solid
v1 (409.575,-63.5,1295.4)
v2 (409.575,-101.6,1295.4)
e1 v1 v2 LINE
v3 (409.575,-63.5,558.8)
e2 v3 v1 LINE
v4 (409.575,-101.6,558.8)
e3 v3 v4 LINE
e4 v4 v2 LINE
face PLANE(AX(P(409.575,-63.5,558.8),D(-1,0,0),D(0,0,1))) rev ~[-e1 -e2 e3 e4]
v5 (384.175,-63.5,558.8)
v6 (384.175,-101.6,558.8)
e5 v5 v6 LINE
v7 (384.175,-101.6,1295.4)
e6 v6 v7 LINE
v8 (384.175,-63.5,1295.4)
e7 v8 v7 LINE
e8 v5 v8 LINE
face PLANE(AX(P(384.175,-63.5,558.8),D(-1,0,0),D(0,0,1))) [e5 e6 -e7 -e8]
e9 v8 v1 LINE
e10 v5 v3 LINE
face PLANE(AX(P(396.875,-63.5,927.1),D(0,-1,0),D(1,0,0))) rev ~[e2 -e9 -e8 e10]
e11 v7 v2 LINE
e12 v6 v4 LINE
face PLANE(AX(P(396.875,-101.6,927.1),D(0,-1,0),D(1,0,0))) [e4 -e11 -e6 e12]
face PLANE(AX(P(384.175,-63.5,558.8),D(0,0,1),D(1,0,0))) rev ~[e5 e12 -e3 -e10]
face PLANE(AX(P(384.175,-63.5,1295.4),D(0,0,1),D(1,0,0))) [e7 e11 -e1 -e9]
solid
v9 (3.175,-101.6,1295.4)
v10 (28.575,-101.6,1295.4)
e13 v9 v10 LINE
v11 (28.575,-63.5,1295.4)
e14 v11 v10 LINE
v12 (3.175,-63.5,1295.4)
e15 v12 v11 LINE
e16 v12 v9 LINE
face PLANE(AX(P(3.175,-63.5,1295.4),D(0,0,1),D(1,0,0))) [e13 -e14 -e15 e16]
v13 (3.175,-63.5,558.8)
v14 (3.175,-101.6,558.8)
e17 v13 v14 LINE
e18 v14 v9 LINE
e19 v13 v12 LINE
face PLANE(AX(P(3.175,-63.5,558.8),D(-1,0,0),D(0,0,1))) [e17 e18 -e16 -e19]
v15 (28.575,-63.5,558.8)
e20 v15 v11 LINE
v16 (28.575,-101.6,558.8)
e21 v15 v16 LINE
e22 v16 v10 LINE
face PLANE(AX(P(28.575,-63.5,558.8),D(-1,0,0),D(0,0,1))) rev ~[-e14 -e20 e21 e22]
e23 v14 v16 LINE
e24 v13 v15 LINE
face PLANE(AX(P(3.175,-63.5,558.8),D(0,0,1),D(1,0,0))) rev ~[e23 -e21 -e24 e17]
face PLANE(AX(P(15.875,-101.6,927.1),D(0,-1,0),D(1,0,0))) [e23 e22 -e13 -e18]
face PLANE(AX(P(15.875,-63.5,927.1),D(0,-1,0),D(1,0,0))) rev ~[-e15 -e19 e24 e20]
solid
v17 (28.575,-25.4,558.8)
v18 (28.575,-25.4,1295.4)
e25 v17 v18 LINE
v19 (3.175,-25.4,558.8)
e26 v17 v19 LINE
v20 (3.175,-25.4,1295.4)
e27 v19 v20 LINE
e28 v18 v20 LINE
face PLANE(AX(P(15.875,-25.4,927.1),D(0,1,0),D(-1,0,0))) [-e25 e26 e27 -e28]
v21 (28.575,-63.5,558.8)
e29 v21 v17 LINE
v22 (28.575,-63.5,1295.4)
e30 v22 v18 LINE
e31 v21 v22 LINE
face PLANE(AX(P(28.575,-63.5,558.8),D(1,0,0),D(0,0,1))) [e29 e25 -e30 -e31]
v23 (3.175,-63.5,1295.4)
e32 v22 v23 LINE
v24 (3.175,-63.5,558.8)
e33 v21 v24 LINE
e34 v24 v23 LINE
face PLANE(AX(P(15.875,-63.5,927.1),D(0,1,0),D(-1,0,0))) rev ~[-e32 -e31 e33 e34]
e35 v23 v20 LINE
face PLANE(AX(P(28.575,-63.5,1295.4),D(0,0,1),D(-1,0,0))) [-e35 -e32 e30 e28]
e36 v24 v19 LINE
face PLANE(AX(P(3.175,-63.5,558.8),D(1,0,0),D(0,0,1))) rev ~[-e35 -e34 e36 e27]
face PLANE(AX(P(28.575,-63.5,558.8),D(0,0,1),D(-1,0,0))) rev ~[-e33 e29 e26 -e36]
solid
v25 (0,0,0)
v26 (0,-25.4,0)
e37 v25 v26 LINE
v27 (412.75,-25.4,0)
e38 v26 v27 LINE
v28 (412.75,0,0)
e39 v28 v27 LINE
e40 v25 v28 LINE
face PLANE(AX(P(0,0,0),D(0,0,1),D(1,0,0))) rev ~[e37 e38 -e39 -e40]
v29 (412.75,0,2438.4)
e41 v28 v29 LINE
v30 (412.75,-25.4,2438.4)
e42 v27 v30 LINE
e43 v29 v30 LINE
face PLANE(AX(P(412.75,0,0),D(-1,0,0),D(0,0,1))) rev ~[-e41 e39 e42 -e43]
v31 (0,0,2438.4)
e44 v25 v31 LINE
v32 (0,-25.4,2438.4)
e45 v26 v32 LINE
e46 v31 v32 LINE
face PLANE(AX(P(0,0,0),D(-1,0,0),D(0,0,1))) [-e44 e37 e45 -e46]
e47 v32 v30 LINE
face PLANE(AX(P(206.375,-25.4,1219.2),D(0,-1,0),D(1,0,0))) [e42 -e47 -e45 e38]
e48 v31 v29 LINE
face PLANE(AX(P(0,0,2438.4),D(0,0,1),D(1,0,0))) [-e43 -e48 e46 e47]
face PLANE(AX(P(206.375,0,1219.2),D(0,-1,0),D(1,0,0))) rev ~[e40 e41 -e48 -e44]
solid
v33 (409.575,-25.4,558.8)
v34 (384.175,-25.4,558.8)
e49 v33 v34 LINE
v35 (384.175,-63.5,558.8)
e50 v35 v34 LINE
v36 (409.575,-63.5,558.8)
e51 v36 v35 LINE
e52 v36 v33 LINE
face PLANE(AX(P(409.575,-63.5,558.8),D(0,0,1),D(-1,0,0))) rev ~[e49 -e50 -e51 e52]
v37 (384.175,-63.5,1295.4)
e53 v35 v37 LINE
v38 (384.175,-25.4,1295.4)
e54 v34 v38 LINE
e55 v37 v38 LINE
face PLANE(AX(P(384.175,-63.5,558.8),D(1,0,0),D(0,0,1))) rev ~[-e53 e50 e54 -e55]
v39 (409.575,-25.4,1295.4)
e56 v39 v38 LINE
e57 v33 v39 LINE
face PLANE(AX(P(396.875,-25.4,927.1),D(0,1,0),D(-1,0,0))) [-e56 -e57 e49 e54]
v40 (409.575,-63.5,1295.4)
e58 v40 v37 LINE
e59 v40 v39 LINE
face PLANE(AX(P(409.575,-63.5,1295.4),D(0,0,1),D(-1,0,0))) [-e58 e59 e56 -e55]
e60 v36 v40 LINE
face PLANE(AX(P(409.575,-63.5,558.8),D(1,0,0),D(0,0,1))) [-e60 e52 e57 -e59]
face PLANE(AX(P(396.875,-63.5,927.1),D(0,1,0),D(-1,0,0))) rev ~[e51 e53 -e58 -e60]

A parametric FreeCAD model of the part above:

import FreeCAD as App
import Part
import Sketcher
from FreeCAD import Vector
Q = App.Units.Quantity


def add_polygon(sketch, points):
    """Adds a closed chain of lines whose ends are joined by coincident constraints."""
    first, n = sketch.GeometryCount, len(points)
    for a, b in zip(points, points[1:] + points[:1]):
        sketch.addGeometry(Part.LineSegment(App.Vector(*a, 0), App.Vector(*b, 0)), False)
    for i in range(n):
        sketch.addConstraint(Sketcher.Constraint("Coincident", first + i, 2, first + (i + 1) % n, 1))

doc = App.newDocument("Part")
params = doc.addObject("Spreadsheet::Sheet", "Params")
for row, (alias, value) in enumerate([
    ("sketch1_height", "96 in"),
    ("sketch1_width", "16.25 in"),
    ("pad1_length", "1 in"),
    ("sketch2_width", "16 in"),
    ("sketch2_width2", "1 in"),
    ("sketch2_height", "29 in"),
    ("sketch2_height2", "26.5 in"),
    ("pad2_length", "3 in"),
    ("sketch3_width", "16 in"),
    ("sketch3_height", "23 in"),
    ("pad3_length", "1.5 in"),
    ("sketch4_width", "1 in"),
    ("sketch4_height", "29 in"),
    ("pad4_length", "1.5 in"),
    ("sketch5_width", "1 in"),
    ("sketch5_height", "29 in"),
    ("pad5_length", "1.5 in"),
], start=1):
    params.set(f"A{row}", alias)
    params.set(f"B{row}", "=" + value)
    params.setAlias(f"B{row}", alias)

body = doc.addObject("PartDesign::Body", "Body")

sketch1 = body.newObject("Sketcher::SketchObject", "Sketch")
sketch1.AttachmentSupport = (doc.getObject("XZ_Plane"), [""])
sketch1.MapMode = "FlatFace"
add_polygon(sketch1, [(0, 2438), (0, 0), (413, 0), (413, 2438)])
sketch1.addConstraint([
    Sketcher.Constraint("Vertical", 0),
    Sketcher.Constraint("Horizontal", 1),
    Sketcher.Constraint("Vertical", 2),
    Sketcher.Constraint("Horizontal", 3),
    Sketcher.Constraint("Coincident", 0, 2, -1, 1),
    Sketcher.Constraint("DistanceY", 0, 2, 0, 1, Q("96 in")),
    Sketcher.Constraint("DistanceX", 1, 1, 1, 2, Q("16.25 in")),
])
sketch1.setExpression("Constraints[9]", "Params.sketch1_height")
sketch1.setExpression("Constraints[10]", "Params.sketch1_width")
pad1 = body.newObject("PartDesign::Pad", "Pad")
pad1.Profile = sketch1
pad1.setExpression("Length", "Params.pad1_length")
body2 = doc.addObject("PartDesign::Body", "Body001")

sketch2 = body2.newObject("Sketcher::SketchObject", "Sketch001")
sketch2.AttachmentSupport = (doc.getObject("XZ_Plane001"), [""])
sketch2.MapMode = "FlatFace"
sketch2.AttachmentOffset = App.Placement(Vector(0, 0, 1 * 25.4), App.Rotation())
add_polygon(sketch2, [(410, 864), (3, 864), (3, 127), (29, 127), (29, 800), (384, 800), (384, 127), (410, 127)])
sketch2.addConstraint([
    Sketcher.Constraint("Horizontal", 0),
    Sketcher.Constraint("Vertical", 1),
    Sketcher.Constraint("Horizontal", 2),
    Sketcher.Constraint("Vertical", 3),
    Sketcher.Constraint("Horizontal", 4),
    Sketcher.Constraint("Vertical", 5),
    Sketcher.Constraint("Horizontal", 6),
    Sketcher.Constraint("Vertical", 7),
    Sketcher.Constraint("Horizontal", 2, 2, 5, 2),
    Sketcher.Constraint("Equal", 2, 6),
    Sketcher.Constraint("DistanceX", 0, 2, 0, 1, Q("16 in")),
    Sketcher.Constraint("DistanceX", 2, 1, 2, 2, Q("1 in")),
    Sketcher.Constraint("DistanceY", 1, 2, 1, 1, Q("29 in")),
    Sketcher.Constraint("DistanceY", 3, 1, 3, 2, Q("26.5 in")),
    Sketcher.Constraint("DistanceY", -1, 1, 0, 2, Q("34 in")),
    Sketcher.Constraint("DistanceX", -1, 1, 0, 2, Q("0.125 in")),
])
sketch2.setExpression("Constraints[18]", "Params.sketch2_width")
sketch2.setExpression("Constraints[19]", "Params.sketch2_width2")
sketch2.setExpression("Constraints[20]", "Params.sketch2_height")
sketch2.setExpression("Constraints[21]", "Params.sketch2_height2")
pad2 = body2.newObject("PartDesign::Pad", "Pad001")
pad2.Profile = sketch2
pad2.setExpression("Length", "Params.pad2_length")
body3 = doc.addObject("PartDesign::Body", "Body002")

sketch3 = body3.newObject("Sketcher::SketchObject", "Sketch002")
sketch3.AttachmentSupport = (doc.getObject("XZ_Plane002"), [""])
sketch3.MapMode = "FlatFace"
sketch3.AttachmentOffset = App.Placement(Vector(0, 0, 1 * 25.4), App.Rotation())
add_polygon(sketch3, [(3, 1295), (3, 711), (410, 711), (410, 1295)])
sketch3.addConstraint([
    Sketcher.Constraint("Vertical", 0),
    Sketcher.Constraint("Horizontal", 1),
    Sketcher.Constraint("Vertical", 2),
    Sketcher.Constraint("Horizontal", 3),
    Sketcher.Constraint("DistanceX", 1, 1, 1, 2, Q("16 in")),
    Sketcher.Constraint("DistanceY", 0, 2, 0, 1, Q("23 in")),
    Sketcher.Constraint("DistanceY", -1, 1, 0, 2, Q("28 in")),
    Sketcher.Constraint("DistanceX", -1, 1, 0, 2, Q("0.125 in")),
])
sketch3.setExpression("Constraints[8]", "Params.sketch3_width")
sketch3.setExpression("Constraints[9]", "Params.sketch3_height")
pad3 = body3.newObject("PartDesign::Pad", "Pad002")
pad3.Profile = sketch3
pad3.setExpression("Length", "Params.pad3_length")
body4 = doc.addObject("PartDesign::Body", "Body003")
body4.AllowCompound = True

sketch4 = body4.newObject("Sketcher::SketchObject", "Sketch003")
sketch4.AttachmentSupport = (doc.getObject("XZ_Plane003"), [""])
sketch4.MapMode = "FlatFace"
sketch4.AttachmentOffset = App.Placement(Vector(0, 0, 2.5 * 25.4), App.Rotation())
add_polygon(sketch4, [(3, 1295), (3, 559), (29, 559), (29, 1295)])
add_polygon(sketch4, [(384, 1295), (384, 559), (410, 559), (410, 1295)])
sketch4.addConstraint([
    Sketcher.Constraint("Vertical", 0),
    Sketcher.Constraint("Horizontal", 1),
    Sketcher.Constraint("Vertical", 2),
    Sketcher.Constraint("Horizontal", 3),
    Sketcher.Constraint("Vertical", 4),
    Sketcher.Constraint("Horizontal", 5),
    Sketcher.Constraint("Vertical", 6),
    Sketcher.Constraint("Horizontal", 7),
    Sketcher.Constraint("Horizontal", 1, 2, 4, 2),
    Sketcher.Constraint("Horizontal", 3, 2, 6, 2),
    Sketcher.Constraint("Equal", 3, 5),
    Sketcher.Constraint("DistanceX", 1, 1, 1, 2, Q("1 in")),
    Sketcher.Constraint("DistanceY", 0, 2, 0, 1, Q("29 in")),
    Sketcher.Constraint("DistanceY", -1, 1, 0, 2, Q("22 in")),
    Sketcher.Constraint("DistanceX", 1, 2, 4, 2, Q("14 in")),
    Sketcher.Constraint("DistanceX", -1, 1, 0, 2, Q("0.125 in")),
])
sketch4.setExpression("Constraints[19]", "Params.sketch4_width")
sketch4.setExpression("Constraints[20]", "Params.sketch4_height")
pad4 = body4.newObject("PartDesign::Pad", "Pad003")
pad4.Profile = sketch4
pad4.setExpression("Length", "Params.pad4_length")
body5 = doc.addObject("PartDesign::Body", "Body004")
body5.AllowCompound = True

sketch5 = body5.newObject("Sketcher::SketchObject", "Sketch004")
sketch5.AttachmentSupport = (doc.getObject("XZ_Plane004"), [""])
sketch5.MapMode = "FlatFace"
sketch5.AttachmentOffset = App.Placement(Vector(0, 0, 2.5 * 25.4), App.Rotation())
add_polygon(sketch5, [(29, 1295), (29, 559), (3, 559), (3, 1295)])
add_polygon(sketch5, [(410, 1295), (410, 559), (384, 559), (384, 1295)])
sketch5.addConstraint([
    Sketcher.Constraint("Vertical", 0),
    Sketcher.Constraint("Horizontal", 1),
    Sketcher.Constraint("Vertical", 2),
    Sketcher.Constraint("Horizontal", 3),
    Sketcher.Constraint("Vertical", 4),
    Sketcher.Constraint("Horizontal", 5),
    Sketcher.Constraint("Vertical", 6),
    Sketcher.Constraint("Horizontal", 7),
    Sketcher.Constraint("Horizontal", 1, 2, 4, 2),
    Sketcher.Constraint("Horizontal", 3, 2, 6, 2),
    Sketcher.Constraint("Equal", 3, 5),
    Sketcher.Constraint("DistanceX", 1, 2, 1, 1, Q("1 in")),
    Sketcher.Constraint("DistanceY", 0, 2, 0, 1, Q("29 in")),
    Sketcher.Constraint("DistanceY", -1, 1, 0, 2, Q("22 in")),
    Sketcher.Constraint("DistanceX", 0, 2, 4, 2, Q("15 in")),
    Sketcher.Constraint("DistanceX", -1, 1, 0, 2, Q("1.125 in")),
])
sketch5.setExpression("Constraints[19]", "Params.sketch5_width")
sketch5.setExpression("Constraints[20]", "Params.sketch5_height")
pad5 = body5.newObject("PartDesign::Pad", "Pad004")
pad5.Profile = sketch5
pad5.setExpression("Length", "Params.pad5_length")
pad5.Reversed = True
body2.Visibility = False
body3.Visibility = False

doc.recompute()
